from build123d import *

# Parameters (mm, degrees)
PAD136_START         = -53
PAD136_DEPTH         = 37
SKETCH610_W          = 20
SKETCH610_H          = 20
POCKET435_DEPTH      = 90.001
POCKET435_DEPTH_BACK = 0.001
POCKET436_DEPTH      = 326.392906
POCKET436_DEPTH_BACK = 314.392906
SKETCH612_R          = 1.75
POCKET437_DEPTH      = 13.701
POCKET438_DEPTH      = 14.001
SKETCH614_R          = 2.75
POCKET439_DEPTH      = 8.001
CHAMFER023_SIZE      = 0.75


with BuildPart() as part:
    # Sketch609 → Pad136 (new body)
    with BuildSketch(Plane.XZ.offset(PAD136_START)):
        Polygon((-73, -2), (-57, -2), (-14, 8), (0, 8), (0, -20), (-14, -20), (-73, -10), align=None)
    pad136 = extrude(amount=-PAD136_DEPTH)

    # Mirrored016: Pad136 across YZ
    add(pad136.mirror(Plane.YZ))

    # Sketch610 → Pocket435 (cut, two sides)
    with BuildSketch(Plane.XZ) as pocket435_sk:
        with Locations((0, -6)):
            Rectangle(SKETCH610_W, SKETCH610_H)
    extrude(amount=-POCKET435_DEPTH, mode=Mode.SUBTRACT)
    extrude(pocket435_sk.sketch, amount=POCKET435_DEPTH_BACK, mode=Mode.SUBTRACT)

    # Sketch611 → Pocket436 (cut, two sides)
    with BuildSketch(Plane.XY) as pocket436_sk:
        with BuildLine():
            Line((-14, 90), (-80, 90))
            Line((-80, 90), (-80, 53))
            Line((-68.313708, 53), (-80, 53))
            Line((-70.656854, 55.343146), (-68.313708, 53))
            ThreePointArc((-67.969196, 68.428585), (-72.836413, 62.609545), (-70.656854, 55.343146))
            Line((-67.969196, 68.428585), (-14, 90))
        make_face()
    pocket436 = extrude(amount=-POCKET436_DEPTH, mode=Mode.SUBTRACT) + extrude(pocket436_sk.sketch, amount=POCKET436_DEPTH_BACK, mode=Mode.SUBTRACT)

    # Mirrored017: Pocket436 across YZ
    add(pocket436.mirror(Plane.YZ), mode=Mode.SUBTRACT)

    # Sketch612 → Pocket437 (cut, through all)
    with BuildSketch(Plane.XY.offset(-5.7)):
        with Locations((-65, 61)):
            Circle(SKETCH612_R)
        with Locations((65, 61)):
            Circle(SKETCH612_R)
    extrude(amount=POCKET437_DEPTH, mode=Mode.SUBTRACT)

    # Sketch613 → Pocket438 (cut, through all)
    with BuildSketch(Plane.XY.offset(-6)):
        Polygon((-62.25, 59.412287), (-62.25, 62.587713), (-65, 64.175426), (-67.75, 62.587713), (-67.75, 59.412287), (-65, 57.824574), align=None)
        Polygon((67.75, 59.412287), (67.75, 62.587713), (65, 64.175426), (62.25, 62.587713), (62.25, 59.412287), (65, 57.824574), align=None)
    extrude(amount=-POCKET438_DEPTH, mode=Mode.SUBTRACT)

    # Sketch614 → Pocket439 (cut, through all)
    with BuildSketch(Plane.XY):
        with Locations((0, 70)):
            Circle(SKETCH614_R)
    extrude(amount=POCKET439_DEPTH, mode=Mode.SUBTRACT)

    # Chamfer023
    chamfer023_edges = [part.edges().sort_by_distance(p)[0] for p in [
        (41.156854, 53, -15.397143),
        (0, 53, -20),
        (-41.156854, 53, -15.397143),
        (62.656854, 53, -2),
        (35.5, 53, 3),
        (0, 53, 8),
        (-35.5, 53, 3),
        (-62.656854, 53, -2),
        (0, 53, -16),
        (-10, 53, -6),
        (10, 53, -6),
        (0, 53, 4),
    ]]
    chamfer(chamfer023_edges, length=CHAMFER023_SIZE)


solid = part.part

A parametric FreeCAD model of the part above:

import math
import FreeCAD as App
import Part
import Sketcher
from FreeCAD import Vector
Q = App.Units.Quantity


def edges_at(feature, points):
    """Names of the edges that pass closest to the given points."""
    edges = feature.Shape.Edges
    near = lambda p: min(range(len(edges)), key=lambda i: edges[i].distToShape(Part.Vertex(*p))[0])
    return sorted({f"Edge{near(p) + 1}" for p in points})


def add_polygon(sketch, points):
    """Adds a closed chain of lines whose ends are joined by coincident constraints."""
    first, n = sketch.GeometryCount, len(points)
    for a, b in zip(points, points[1:] + points[:1]):
        sketch.addGeometry(Part.LineSegment(App.Vector(*a, 0), App.Vector(*b, 0)), False)
    for i in range(n):
        sketch.addConstraint(Sketcher.Constraint("Coincident", first + i, 2, first + (i + 1) % n, 1))

doc = App.newDocument("Part")
params = doc.addObject("Spreadsheet::Sheet", "Params")
for row, (alias, value) in enumerate([
    ("sketch1_width", "16 mm"),
    ("sketch1_width2", "14 mm"),
    ("sketch1_height", "8 mm"),
    ("sketch1_height2", "28 mm"),
    ("pad1_length", "37 mm"),
    ("sketch2_width", "20 mm"),
    ("sketch3_radius", "7.999999 mm"),
    ("sketch3_width", "66 mm"),
    ("sketch3_height", "37 mm"),
    ("sketch4_diameter", "3.5 mm"),
    ("sketch6_diameter", "5.5 mm"),
    ("chamfer_size", "0.75 mm"),
], start=1):
    params.set(f"A{row}", alias)
    params.set(f"B{row}", "=" + value)
    params.setAlias(f"B{row}", alias)

body = doc.addObject("PartDesign::Body", "Body")

sketch1 = body.newObject("Sketcher::SketchObject", "Sketch")
sketch1.AttachmentSupport = (doc.getObject("XZ_Plane"), [""])
sketch1.MapMode = "FlatFace"
sketch1.AttachmentOffset = App.Placement(Vector(0, 0, -53), App.Rotation())
add_polygon(sketch1, [(-57, -2), (-73, -2), (-73, -10), (-14, -20), (0, -20), (0, 8), (-14, 8)])
sketch1.addConstraint([
    Sketcher.Constraint("Horizontal", 0),
    Sketcher.Constraint("Vertical", 1),
    Sketcher.Constraint("Horizontal", 3),
    Sketcher.Constraint("Vertical", 4),
    Sketcher.Constraint("Horizontal", 5),
    Sketcher.Constraint("PointOnObject", 3, 2, -2),
    Sketcher.Constraint("Vertical", 2, 2, 5, 2),
    Sketcher.Constraint("DistanceX", 0, 2, 0, 1, Q("16 mm")),
    Sketcher.Constraint("DistanceX", 3, 1, 3, 2, Q("14 mm")),
    Sketcher.Constraint("DistanceY", 1, 2, 1, 1, Q("8 mm")),
    Sketcher.Constraint("DistanceY", 4, 1, 4, 2, Q("28 mm")),
    Sketcher.Constraint("DistanceX", 0, 2, -1, 1, Q("73 mm")),
    Sketcher.Constraint("DistanceY", 0, 2, -1, 1, Q("2 mm")),
    Sketcher.Constraint("DistanceY", 2, 2, -1, 1, Q("20 mm")),
])
sketch1.setExpression("Constraints[14]", "Params.sketch1_width")
sketch1.setExpression("Constraints[15]", "Params.sketch1_width2")
sketch1.setExpression("Constraints[16]", "Params.sketch1_height")
sketch1.setExpression("Constraints[17]", "Params.sketch1_height2")
pad1 = body.newObject("PartDesign::Pad", "Pad")
pad1.Profile = sketch1
pad1.setExpression("Length", "Params.pad1_length")
pad1.Reversed = True
doc.recompute()

mirrored = body.newObject("PartDesign::Mirrored", "Mirrored")
mirrored.Originals = [pad1]
mirrored.MirrorPlane = (doc.getObject("YZ_Plane"), [""])
body.Tip = mirrored

sketch2 = body.newObject("Sketcher::SketchObject", "Sketch001")
sketch2.AttachmentSupport = (doc.getObject("XZ_Plane"), [""])
sketch2.MapMode = "FlatFace"
add_polygon(sketch2, [(-10, 4), (-10, -16), (10, -16), (10, 4)])
sketch2.addConstraint([
    Sketcher.Constraint("Vertical", 0),
    Sketcher.Constraint("Horizontal", 1),
    Sketcher.Constraint("Vertical", 2),
    Sketcher.Constraint("Horizontal", 3),
    Sketcher.Constraint("Equal", 3, 0),
    Sketcher.Constraint("DistanceX", 1, 1, 1, 2, Q("20 mm")),
    Sketcher.Constraint("DistanceX", 0, 2, -1, 1, Q("10 mm")),
    Sketcher.Constraint("DistanceY", 0, 2, -1, 1, Q("16 mm")),
])
sketch2.setExpression("Constraints[9]", "Params.sketch2_width")
pocket1 = body.newObject("PartDesign::Pocket", "Pocket")
pocket1.Profile = sketch2
pocket1.Type = "ThroughAll"
pocket1.Midplane = True

sketch3 = body.newObject("Sketcher::SketchObject", "Sketch002")
sketch3.AttachmentSupport = (doc.getObject("XY_Plane"), [""])
sketch3.MapMode = "FlatFace"
sketch3.addGeometry([
    Part.LineSegment(Vector(-14, 90, 0), Vector(-80, 90, 0)),
    Part.LineSegment(Vector(-80, 90, 0), Vector(-80, 53, 0)),
    Part.LineSegment(Vector(-80, 53, 0), Vector(-68.313708, 53, 0)),
    Part.LineSegment(Vector(-68.313708, 53, 0), Vector(-70.656854, 55.343146, 0)),
    Part.ArcOfCircle(Part.Circle(Vector(-65.000001, 61, 0), Vector(0, 0, 1), 7.999999), math.radians(111.786523), math.radians(225.000006)),
    Part.LineSegment(Vector(-67.969196, 68.428585, 0), Vector(-14, 90, 0)),
], False)
sketch3.addConstraint([
    Sketcher.Constraint("Coincident", 0, 2, 1, 1),
    Sketcher.Constraint("Coincident", 1, 2, 2, 1),
    Sketcher.Constraint("Coincident", 2, 2, 3, 1),
    Sketcher.Constraint("Tangent", 3, 2, 4, 2),
    Sketcher.Constraint("Tangent", 4, 1, 5, 1),
    Sketcher.Constraint("Coincident", 5, 2, 0, 1),
    Sketcher.Constraint("Horizontal", 0),
    Sketcher.Constraint("Vertical", 1),
    Sketcher.Constraint("Horizontal", 2),
    Sketcher.Constraint("Radius", 4, Q("7.999999 mm")),
    Sketcher.Constraint("DistanceX", 0, 2, 0, 1, Q("66 mm")),
    Sketcher.Constraint("DistanceY", 1, 2, 1, 1, Q("37 mm")),
    Sketcher.Constraint("Angle", 3, Q("135 deg")),
    Sketcher.Constraint("DistanceX", 4, 3, -1, 1, Q("65.000001 mm")),
    Sketcher.Constraint("DistanceY", -1, 1, 4, 3, Q("61 mm")),
    Sketcher.Constraint("DistanceX", 0, 2, -1, 1, Q("80 mm")),
    Sketcher.Constraint("DistanceY", -1, 1, 0, 2, Q("90 mm")),
])
sketch3.setExpression("Constraints[9]", "Params.sketch3_radius")
sketch3.setExpression("Constraints[10]", "Params.sketch3_width")
sketch3.setExpression("Constraints[11]", "Params.sketch3_height")
pocket2 = body.newObject("PartDesign::Pocket", "Pocket001")
pocket2.Profile = sketch3
pocket2.Type = "ThroughAll"
pocket2.Midplane = True
doc.recompute()

mirrored2 = body.newObject("PartDesign::Mirrored", "Mirrored001")
mirrored2.Originals = [pocket2]
mirrored2.MirrorPlane = (doc.getObject("YZ_Plane"), [""])
body.Tip = mirrored2

sketch4 = body.newObject("Sketcher::SketchObject", "Sketch003")
sketch4.AttachmentSupport = (doc.getObject("XY_Plane"), [""])
sketch4.MapMode = "FlatFace"
sketch4.AttachmentOffset = App.Placement(Vector(0, 0, -5.7), App.Rotation())
sketch4.addGeometry([
    Part.Circle(Vector(-65, 61, 0), Vector(0, 0, 1), 1.75),
    Part.Circle(Vector(65, 61, 0), Vector(0, 0, 1), 1.75),
], False)
sketch4.addConstraint([
    Sketcher.Constraint("Equal", 0, 1),
    Sketcher.Constraint("Symmetric", 0, 3, 1, 3, -2),
    Sketcher.Constraint("Diameter", 0, Q("3.5 mm")),
    Sketcher.Constraint("DistanceX", 0, 3, -1, 1, Q("65 mm")),
    Sketcher.Constraint("DistanceY", -1, 1, 0, 3, Q("61 mm")),
])
sketch4.setExpression("Constraints[2]", "Params.sketch4_diameter")
pocket3 = body.newObject("PartDesign::Pocket", "Pocket002")
pocket3.Profile = sketch4
pocket3.Type = "ThroughAll"
pocket3.Reversed = True

sketch5 = body.newObject("Sketcher::SketchObject", "Sketch004")
sketch5.AttachmentSupport = (doc.getObject("XY_Plane"), [""])
sketch5.MapMode = "FlatFace"
sketch5.AttachmentOffset = App.Placement(Vector(0, 0, -6), App.Rotation())
add_polygon(sketch5, [(-62.25, 59.412287), (-62.25, 62.587713), (-65, 64.175426), (-67.75, 62.587713), (-67.75, 59.412287), (-65, 57.824574)])
add_polygon(sketch5, [(67.75, 59.412287), (67.75, 62.587713), (65, 64.175426), (62.25, 62.587713), (62.25, 59.412287), (65, 57.824574)])
sketch5.addConstraint([
    Sketcher.Constraint("Vertical", 0),
    Sketcher.Constraint("Vertical", 3),
    Sketcher.Constraint("Vertical", 6),
    Sketcher.Constraint("Vertical", 9),
    Sketcher.Constraint("Symmetric", 2, 2, 6, 2, -2),
    Sketcher.Constraint("Symmetric", 1, 2, 7, 2, -2),
    Sketcher.Constraint("Symmetric", 0, 2, 8, 2, -2),
    Sketcher.Constraint("Symmetric", 4, 2, 10, 2, -2),
    Sketcher.Constraint("Parallel", 1, 4),
    Sketcher.Constraint("Parallel", 2, 5),
    Sketcher.Constraint("Parallel", 4, 7),
    Sketcher.Constraint("Parallel", 7, 10),
    Sketcher.Constraint("Parallel", 8, 11),
    Sketcher.Constraint("Horizontal", 0, 2, 2, 2),
    Sketcher.Constraint("Horizontal", 3, 2, 5, 2),
    Sketcher.Constraint("Angle", 1, Q("150.000004 deg")),
    Sketcher.Constraint("DistanceX", 1, 2, -1, 1, Q("65 mm")),
    Sketcher.Constraint("DistanceX", 2, 2, 0, 2, Q("5.5 mm")),
    Sketcher.Constraint("DistanceY", 0, 1, 0, 2, Q("3.175426 mm")),
    Sketcher.Constraint("DistanceY", -1, 1, 0, 2, Q("62.587713 mm")),
])
pocket4 = body.newObject("PartDesign::Pocket", "Pocket003")
pocket4.Profile = sketch5
pocket4.Type = "ThroughAll"

sketch6 = body.newObject("Sketcher::SketchObject", "Sketch005")
sketch6.AttachmentSupport = (doc.getObject("XY_Plane"), [""])
sketch6.MapMode = "FlatFace"
sketch6.addGeometry(Part.Circle(Vector(0, 70, 0), Vector(0, 0, 1), 2.75), False)
sketch6.addConstraint([
    Sketcher.Constraint("PointOnObject", 0, 3, -2),
    Sketcher.Constraint("Diameter", 0, Q("5.5 mm")),
    Sketcher.Constraint("DistanceY", -1, 1, 0, 3, Q("70 mm")),
])
sketch6.setExpression("Constraints[1]", "Params.sketch6_diameter")
pocket5 = body.newObject("PartDesign::Pocket", "Pocket004")
pocket5.Profile = sketch6
pocket5.Type = "ThroughAll"
pocket5.Reversed = True
doc.recompute()

chamfer = body.newObject("PartDesign::Chamfer", "Chamfer")
chamfer.Base = (pocket5, edges_at(pocket5, [
    (41.157, 53, -15.397),
    (0, 53, -20),
    (-41.157, 53, -15.397),
    (62.657, 53, -2),
    (35.5, 53, 3),
    (0, 53, 8),
    (-35.5, 53, 3),
    (-62.657, 53, -2),
    (0, 53, -16),
    (-10, 53, -6),
    (10, 53, -6),
    (0, 53, 4),
]))
chamfer.setExpression("Size", "Params.chamfer_size")

doc.recompute()
